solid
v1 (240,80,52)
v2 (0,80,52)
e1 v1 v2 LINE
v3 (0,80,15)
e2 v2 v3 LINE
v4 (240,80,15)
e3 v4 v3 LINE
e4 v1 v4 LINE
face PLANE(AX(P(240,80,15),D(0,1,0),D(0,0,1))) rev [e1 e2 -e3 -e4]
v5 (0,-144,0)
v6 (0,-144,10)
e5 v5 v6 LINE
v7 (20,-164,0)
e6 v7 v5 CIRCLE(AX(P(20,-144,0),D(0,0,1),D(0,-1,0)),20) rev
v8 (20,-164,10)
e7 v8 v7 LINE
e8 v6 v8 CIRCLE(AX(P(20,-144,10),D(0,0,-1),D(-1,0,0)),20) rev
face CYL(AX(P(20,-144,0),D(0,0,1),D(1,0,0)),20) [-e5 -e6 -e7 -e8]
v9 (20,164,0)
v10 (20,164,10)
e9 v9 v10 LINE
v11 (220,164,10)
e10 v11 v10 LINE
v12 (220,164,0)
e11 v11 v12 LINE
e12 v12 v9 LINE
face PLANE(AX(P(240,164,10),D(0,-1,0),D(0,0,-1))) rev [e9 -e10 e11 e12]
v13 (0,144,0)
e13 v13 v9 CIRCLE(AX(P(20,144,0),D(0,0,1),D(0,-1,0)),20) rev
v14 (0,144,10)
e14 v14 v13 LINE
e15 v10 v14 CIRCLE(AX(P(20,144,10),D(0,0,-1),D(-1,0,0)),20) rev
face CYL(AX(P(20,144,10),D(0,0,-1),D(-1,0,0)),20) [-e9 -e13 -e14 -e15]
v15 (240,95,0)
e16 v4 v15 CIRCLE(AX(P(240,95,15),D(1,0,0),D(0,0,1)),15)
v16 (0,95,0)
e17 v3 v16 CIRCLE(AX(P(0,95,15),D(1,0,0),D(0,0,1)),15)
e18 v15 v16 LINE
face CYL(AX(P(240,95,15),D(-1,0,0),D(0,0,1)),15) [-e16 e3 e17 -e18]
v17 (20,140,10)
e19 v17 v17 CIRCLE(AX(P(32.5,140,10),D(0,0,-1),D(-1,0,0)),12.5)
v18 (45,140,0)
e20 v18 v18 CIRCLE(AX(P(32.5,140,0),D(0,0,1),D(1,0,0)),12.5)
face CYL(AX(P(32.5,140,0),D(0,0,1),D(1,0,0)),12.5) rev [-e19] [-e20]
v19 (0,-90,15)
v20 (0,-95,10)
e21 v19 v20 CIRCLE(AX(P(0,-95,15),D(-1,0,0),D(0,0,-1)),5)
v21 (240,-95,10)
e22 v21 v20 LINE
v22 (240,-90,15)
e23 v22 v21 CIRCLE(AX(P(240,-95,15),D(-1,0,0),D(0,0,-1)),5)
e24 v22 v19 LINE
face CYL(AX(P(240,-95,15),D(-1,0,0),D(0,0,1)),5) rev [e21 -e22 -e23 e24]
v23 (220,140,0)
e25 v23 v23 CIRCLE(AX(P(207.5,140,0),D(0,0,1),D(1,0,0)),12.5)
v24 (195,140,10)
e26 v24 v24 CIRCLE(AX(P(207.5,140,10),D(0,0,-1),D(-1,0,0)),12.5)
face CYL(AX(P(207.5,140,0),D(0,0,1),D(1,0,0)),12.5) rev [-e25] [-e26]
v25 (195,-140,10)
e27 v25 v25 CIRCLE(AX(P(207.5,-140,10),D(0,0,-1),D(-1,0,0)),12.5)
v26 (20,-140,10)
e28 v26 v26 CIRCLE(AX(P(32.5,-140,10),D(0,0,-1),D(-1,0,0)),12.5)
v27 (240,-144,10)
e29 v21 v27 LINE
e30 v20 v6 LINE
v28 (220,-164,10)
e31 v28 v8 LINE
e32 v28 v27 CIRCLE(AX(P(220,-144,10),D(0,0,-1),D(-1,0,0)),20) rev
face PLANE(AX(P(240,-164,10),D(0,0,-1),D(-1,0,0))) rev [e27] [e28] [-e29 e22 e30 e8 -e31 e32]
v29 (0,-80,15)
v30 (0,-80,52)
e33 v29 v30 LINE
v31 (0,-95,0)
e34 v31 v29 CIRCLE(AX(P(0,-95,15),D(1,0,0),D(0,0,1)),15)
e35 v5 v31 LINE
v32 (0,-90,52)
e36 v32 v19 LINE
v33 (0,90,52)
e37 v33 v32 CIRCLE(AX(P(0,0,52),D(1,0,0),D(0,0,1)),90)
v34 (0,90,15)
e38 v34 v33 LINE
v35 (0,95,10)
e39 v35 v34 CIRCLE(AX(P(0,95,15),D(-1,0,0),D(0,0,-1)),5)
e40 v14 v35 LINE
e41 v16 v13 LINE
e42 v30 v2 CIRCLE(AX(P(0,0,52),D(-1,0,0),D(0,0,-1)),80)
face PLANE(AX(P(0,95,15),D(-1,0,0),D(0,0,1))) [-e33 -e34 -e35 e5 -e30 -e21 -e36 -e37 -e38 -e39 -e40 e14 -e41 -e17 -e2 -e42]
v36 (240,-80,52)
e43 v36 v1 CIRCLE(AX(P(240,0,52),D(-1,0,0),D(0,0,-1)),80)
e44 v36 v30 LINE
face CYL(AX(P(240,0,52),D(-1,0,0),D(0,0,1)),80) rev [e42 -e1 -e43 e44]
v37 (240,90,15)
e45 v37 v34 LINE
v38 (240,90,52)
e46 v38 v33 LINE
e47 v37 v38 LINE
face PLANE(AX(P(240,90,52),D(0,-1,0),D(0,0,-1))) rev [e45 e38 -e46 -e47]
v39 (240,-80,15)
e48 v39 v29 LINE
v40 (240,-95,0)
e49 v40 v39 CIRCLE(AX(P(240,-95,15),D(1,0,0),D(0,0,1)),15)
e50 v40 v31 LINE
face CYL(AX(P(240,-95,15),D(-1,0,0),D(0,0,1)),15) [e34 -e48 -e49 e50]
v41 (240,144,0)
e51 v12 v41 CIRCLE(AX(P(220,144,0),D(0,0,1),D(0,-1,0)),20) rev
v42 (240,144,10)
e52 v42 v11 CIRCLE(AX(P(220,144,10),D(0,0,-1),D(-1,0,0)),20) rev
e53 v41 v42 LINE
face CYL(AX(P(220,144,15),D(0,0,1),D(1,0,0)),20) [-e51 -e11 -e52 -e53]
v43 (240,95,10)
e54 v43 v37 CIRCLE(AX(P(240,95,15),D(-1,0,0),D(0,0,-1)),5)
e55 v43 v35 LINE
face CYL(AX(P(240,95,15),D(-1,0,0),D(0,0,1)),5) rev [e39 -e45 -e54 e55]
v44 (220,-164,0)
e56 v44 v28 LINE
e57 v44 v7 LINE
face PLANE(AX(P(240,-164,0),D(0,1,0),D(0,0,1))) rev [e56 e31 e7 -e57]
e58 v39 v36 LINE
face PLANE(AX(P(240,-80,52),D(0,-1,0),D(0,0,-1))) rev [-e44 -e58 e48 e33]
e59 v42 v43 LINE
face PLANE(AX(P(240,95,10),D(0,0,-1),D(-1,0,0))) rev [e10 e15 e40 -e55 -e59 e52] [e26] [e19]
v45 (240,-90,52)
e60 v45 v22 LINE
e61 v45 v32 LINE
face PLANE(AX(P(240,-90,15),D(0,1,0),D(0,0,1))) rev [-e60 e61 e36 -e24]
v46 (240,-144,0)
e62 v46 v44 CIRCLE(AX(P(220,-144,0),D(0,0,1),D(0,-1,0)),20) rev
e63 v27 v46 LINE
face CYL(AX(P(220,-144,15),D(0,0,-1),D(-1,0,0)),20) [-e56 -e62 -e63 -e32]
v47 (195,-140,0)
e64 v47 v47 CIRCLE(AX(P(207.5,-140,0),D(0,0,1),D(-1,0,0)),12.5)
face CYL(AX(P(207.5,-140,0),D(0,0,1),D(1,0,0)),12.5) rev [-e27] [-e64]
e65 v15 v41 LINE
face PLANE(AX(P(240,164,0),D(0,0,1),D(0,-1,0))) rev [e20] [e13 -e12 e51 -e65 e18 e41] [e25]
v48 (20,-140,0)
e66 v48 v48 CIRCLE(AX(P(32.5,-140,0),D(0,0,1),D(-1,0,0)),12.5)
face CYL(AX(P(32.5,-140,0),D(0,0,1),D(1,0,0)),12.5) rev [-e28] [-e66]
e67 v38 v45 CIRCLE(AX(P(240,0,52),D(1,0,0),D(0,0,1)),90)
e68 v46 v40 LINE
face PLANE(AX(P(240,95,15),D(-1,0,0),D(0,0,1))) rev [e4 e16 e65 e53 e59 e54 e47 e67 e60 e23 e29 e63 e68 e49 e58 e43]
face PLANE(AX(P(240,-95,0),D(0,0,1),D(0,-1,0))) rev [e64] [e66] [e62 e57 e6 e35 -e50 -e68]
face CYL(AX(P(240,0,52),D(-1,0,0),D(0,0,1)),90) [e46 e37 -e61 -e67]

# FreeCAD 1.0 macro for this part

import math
import FreeCAD as App
import Part
import Sketcher

V = App.Vector


def edges_at(feature, points):
    """Names of the edges that pass closest to the given points."""
    edges = feature.Shape.Edges
    near = lambda p: min(range(len(edges)), key=lambda i: edges[i].distToShape(Part.Vertex(*p))[0])
    return sorted({f"Edge{near(p) + 1}" for p in points})

doc = App.newDocument("Part")
params = doc.addObject("Spreadsheet::Sheet", "Params")
for row, (alias, value) in enumerate([
    ("sketch1_radius", "5 mm"),
    ("sketch1_radius2", "90 mm"),
    ("sketch1_radius3", "15 mm"),
    ("sketch1_width", "69 mm"),
    ("sketch1_height", "37 mm"),
    ("pad1_length", "240 mm"),
    ("sketch2_diameter", "25 mm"),
    ("fillet_radius", "20 mm"),
], start=1):
    params.set(f"A{row}", alias)
    params.set(f"B{row}", "=" + value)
    params.setAlias(f"B{row}", alias)

body = doc.addObject("PartDesign::Body", "Body")

sketch1 = body.newObject("Sketcher::SketchObject", "Sketch")
sketch1.AttachmentSupport = (doc.getObject("YZ_Plane"), [""])
sketch1.MapMode = "FlatFace"
sketch1.addGeometry([
    Part.LineSegment(V(95, 0, 0), V(164, 0, 0)),
    Part.LineSegment(V(164, 0, 0), V(164, 10, 0)),
    Part.LineSegment(V(164, 10, 0), V(95, 10, 0)),
    Part.ArcOfCircle(Part.Circle(V(95, 15, 0), V(0, 0, 1), 5), math.radians(180), math.radians(270)),
    Part.LineSegment(V(90, 15, 0), V(90, 52, 0)),
    Part.ArcOfCircle(Part.Circle(V(0, 52, 0), V(0, 0, 1), 90), math.radians(0), math.radians(180)),
    Part.LineSegment(V(-90, 52, 0), V(-90, 15, 0)),
    Part.ArcOfCircle(Part.Circle(V(-95, 15, 0), V(0, 0, 1), 5), math.radians(-90), math.radians(0)),
    Part.LineSegment(V(-95, 10, 0), V(-164, 10, 0)),
    Part.LineSegment(V(-164, 10, 0), V(-164, 0, 0)),
    Part.LineSegment(V(-164, 0, 0), V(-95, 0, 0)),
    Part.ArcOfCircle(Part.Circle(V(-95, 15, 0), V(0, 0, 1), 15), math.radians(-90), math.radians(0)),
    Part.LineSegment(V(-80, 15, 0), V(-80, 52, 0)),
    Part.ArcOfCircle(Part.Circle(V(0, 52, 0), V(0, 0, 1), 80), math.radians(0), math.radians(180)),
    Part.LineSegment(V(80, 52, 0), V(80, 15, 0)),
    Part.ArcOfCircle(Part.Circle(V(95, 15, 0), V(0, 0, 1), 15), math.radians(180), math.radians(270)),
], False)
sketch1.addConstraint([
    Sketcher.Constraint("Coincident", 0, 2, 1, 1),
    Sketcher.Constraint("Coincident", 1, 2, 2, 1),
    Sketcher.Constraint("Tangent", 2, 2, 3, 2),
    Sketcher.Constraint("Tangent", 3, 1, 4, 1),
    Sketcher.Constraint("Tangent", 4, 2, 5, 1),
    Sketcher.Constraint("Tangent", 5, 2, 6, 1),
    Sketcher.Constraint("Tangent", 6, 2, 7, 2),
    Sketcher.Constraint("Tangent", 7, 1, 8, 1),
    Sketcher.Constraint("Coincident", 8, 2, 9, 1),
    Sketcher.Constraint("Coincident", 9, 2, 10, 1),
    Sketcher.Constraint("Tangent", 10, 2, 11, 1),
    Sketcher.Constraint("Tangent", 11, 2, 12, 1),
    Sketcher.Constraint("Tangent", 12, 2, 13, 2),
    Sketcher.Constraint("Tangent", 13, 1, 14, 1),
    Sketcher.Constraint("Tangent", 14, 2, 15, 1),
    Sketcher.Constraint("Tangent", 15, 2, 0, 1),
    Sketcher.Constraint("Horizontal", 0),
    Sketcher.Constraint("Vertical", 1),
    Sketcher.Constraint("Horizontal", 2),
    Sketcher.Constraint("Vertical", 4),
    Sketcher.Constraint("Vertical", 6),
    Sketcher.Constraint("Horizontal", 8),
    Sketcher.Constraint("Vertical", 9),
    Sketcher.Constraint("Horizontal", 10),
    Sketcher.Constraint("Vertical", 12),
    Sketcher.Constraint("Vertical", 14),
    Sketcher.Constraint("Coincident", 11, 3, 7, 3),
    Sketcher.Constraint("Coincident", 13, 3, 5, 3),
    Sketcher.Constraint("Coincident", 15, 3, 3, 3),
    Sketcher.Constraint("Equal", 3, 7),
    Sketcher.Constraint("Symmetric", 0, 2, 9, 2, -1, 1),
    Sketcher.Constraint("Symmetric", 3, 3, 7, 3, -2),
    Sketcher.Constraint("Radius", 3, 5.0),
    Sketcher.Constraint("Radius", 5, 90.0),
    Sketcher.Constraint("Radius", 11, 15.0),
    Sketcher.Constraint("DistanceX", 0, 1, 0, 2, 69.0),
    Sketcher.Constraint("DistanceY", 4, 1, 4, 2, 37.0),
])
sketch1.setExpression("Constraints[32]", "Params.sketch1_radius")
sketch1.setExpression("Constraints[33]", "Params.sketch1_radius2")
sketch1.setExpression("Constraints[34]", "Params.sketch1_radius3")
sketch1.setExpression("Constraints[35]", "Params.sketch1_width")
sketch1.setExpression("Constraints[36]", "Params.sketch1_height")
pad1 = body.newObject("PartDesign::Pad", "Pad")
pad1.Profile = sketch1
pad1.setExpression("Length", "Params.pad1_length")

sketch2 = body.newObject("Sketcher::SketchObject", "Sketch001")
sketch2.AttachmentSupport = (doc.getObject("XY_Plane"), [""])
sketch2.MapMode = "FlatFace"
sketch2.AttachmentOffset = App.Placement(V(0, 0, 10), App.Rotation())
sketch2.addGeometry([
    Part.Circle(V(32.5, 140, 0), V(0, 0, 1), 12.5),
    Part.Circle(V(207.5, 140, 0), V(0, 0, 1), 12.5),
    Part.Circle(V(207.5, -140, 0), V(0, 0, 1), 12.5),
    Part.Circle(V(32.5, -140, 0), V(0, 0, 1), 12.5),
], False)
sketch2.addConstraint([
    Sketcher.Constraint("Equal", 0, 1),
    Sketcher.Constraint("Equal", 1, 2),
    Sketcher.Constraint("Equal", 2, 3),
    Sketcher.Constraint("Symmetric", 1, 3, 2, 3, -1),
    Sketcher.Constraint("Symmetric", 0, 3, 3, 3, -1),
    Sketcher.Constraint("Horizontal", 0, 3, 1, 3),
    Sketcher.Constraint("Diameter", 0, 25.0),
    Sketcher.Constraint("DistanceY", -1, 1, 0, 3, 140.0),
    Sketcher.Constraint("DistanceX", 0, 3, 1, 3, 175.0),
    Sketcher.Constraint("DistanceX", -1, 1, 0, 3, 32.5),
])
sketch2.setExpression("Constraints[6]", "Params.sketch2_diameter")
pocket1 = body.newObject("PartDesign::Pocket", "Pocket")
pocket1.Profile = sketch2
pocket1.Type = "ThroughAll"
pocket1.Midplane = True
doc.recompute()

fillet = body.newObject("PartDesign::Fillet", "Fillet")
fillet.Base = (pocket1, edges_at(pocket1, [
    (0, -164, 5),
    (0, 164, 5),
    (240, -164, 5),
    (240, 164, 5),
]))
fillet.setExpression("Radius", "Params.fillet_radius")

doc.recompute()
